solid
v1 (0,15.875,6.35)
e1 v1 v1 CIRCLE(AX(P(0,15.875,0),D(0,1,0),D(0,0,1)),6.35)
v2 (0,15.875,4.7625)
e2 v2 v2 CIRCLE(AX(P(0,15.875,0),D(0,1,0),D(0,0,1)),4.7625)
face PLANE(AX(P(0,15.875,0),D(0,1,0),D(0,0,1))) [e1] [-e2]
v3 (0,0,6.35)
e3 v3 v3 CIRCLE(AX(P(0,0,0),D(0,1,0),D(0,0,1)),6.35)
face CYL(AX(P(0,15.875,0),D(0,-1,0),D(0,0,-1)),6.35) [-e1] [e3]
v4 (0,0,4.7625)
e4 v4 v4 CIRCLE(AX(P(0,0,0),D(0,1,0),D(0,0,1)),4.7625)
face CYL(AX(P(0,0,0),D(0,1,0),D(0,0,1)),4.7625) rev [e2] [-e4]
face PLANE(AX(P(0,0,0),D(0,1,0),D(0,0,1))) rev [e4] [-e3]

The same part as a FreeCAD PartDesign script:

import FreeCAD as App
import Part
import Sketcher
from FreeCAD import Vector
Q = App.Units.Quantity

doc = App.newDocument("Part")
body = doc.addObject("PartDesign::Body", "Body")

# Sketch on XZ plane
sketch1 = doc.addObject("Sketcher::SketchObject", "Sketch")
body.addObject(sketch1)
sketch1.AttachmentSupport = (doc.XZ_Plane, [""])
sketch1.MapMode = "FlatFace"
sketch1.addGeometry(Part.Circle(Vector(0, 0, 0), Vector(0, 0, 1), 6), False)
sketch1.addConstraint(Sketcher.Constraint("Coincident", 0, 3, -1, 1))
sketch1.addConstraint(Sketcher.Constraint("Diameter", 0, Q("0.5 in")))
pad1 = doc.addObject("PartDesign::Pad", "Pad")
body.addObject(pad1)
pad1.Profile = sketch1
pad1.Length = Q("0.625 in")
pad1.Reversed = True

# Sketch on XZ plane
sketch2 = doc.addObject("Sketcher::SketchObject", "Sketch001")
body.addObject(sketch2)
sketch2.AttachmentSupport = (doc.XZ_Plane, [""])
sketch2.MapMode = "FlatFace"
sketch2.AttachmentOffset = App.Placement(Vector(0, 0, -0.625 * 25.4), App.Rotation())
sketch2.addGeometry(Part.Circle(Vector(0, 0, 0), Vector(0, 0, 1), 4.8), False)
sketch2.addConstraint(Sketcher.Constraint("Coincident", 0, 3, -1, 1))
sketch2.addConstraint(Sketcher.Constraint("Diameter", 0, Q("0.375 in")))
pocket1 = doc.addObject("PartDesign::Pocket", "Pocket")
body.addObject(pocket1)
pocket1.Profile = sketch2
pocket1.Type = "ThroughAll"
pocket1.Reversed = True

doc.recompute()
